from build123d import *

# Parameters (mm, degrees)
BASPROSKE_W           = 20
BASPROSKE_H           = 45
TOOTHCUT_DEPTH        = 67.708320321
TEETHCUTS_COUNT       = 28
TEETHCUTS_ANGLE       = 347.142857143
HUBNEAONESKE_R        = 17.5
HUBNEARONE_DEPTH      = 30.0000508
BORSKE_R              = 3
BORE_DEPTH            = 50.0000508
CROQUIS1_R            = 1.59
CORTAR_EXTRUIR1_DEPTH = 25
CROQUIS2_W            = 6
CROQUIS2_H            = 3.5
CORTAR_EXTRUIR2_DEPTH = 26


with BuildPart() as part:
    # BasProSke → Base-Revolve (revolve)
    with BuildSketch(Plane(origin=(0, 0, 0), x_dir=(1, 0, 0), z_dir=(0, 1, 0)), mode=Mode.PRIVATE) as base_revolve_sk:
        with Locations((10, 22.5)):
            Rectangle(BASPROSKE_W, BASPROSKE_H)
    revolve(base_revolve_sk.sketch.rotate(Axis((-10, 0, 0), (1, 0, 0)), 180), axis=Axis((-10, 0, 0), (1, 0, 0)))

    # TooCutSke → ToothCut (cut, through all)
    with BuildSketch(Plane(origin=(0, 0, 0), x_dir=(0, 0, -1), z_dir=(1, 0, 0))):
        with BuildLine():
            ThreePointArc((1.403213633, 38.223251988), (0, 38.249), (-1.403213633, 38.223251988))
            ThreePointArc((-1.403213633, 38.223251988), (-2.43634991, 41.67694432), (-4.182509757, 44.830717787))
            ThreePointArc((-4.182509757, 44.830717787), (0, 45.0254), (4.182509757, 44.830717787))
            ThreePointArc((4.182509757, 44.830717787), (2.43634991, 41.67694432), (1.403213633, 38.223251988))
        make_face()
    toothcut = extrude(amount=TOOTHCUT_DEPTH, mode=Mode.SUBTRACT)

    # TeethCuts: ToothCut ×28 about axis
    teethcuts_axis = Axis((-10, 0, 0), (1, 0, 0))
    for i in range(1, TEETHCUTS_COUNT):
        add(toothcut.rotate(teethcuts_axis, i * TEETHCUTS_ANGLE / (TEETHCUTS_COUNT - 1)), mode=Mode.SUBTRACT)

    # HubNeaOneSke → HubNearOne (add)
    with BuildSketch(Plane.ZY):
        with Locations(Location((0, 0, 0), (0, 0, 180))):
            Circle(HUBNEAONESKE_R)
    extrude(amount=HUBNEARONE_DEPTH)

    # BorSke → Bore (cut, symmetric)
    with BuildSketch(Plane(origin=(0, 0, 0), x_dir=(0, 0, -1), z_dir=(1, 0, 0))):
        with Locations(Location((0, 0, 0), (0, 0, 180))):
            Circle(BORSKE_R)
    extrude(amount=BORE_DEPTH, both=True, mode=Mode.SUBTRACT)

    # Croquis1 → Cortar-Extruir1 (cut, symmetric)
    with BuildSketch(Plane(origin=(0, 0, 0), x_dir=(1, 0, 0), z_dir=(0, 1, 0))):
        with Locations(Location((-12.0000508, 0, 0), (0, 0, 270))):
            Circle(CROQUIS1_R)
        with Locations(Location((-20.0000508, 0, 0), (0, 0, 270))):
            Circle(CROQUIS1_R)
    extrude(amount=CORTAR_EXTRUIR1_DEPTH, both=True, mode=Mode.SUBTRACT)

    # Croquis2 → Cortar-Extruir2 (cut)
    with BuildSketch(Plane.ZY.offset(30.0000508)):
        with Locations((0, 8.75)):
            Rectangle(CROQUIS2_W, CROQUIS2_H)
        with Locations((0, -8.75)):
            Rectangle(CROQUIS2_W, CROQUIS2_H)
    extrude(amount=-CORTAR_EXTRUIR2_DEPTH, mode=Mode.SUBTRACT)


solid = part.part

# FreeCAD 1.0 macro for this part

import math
import FreeCAD as App
import Part
import Sketcher
from FreeCAD import Vector


def add_polygon(sketch, points):
    """Adds a closed chain of lines whose ends are joined by coincident constraints."""
    first, n = sketch.GeometryCount, len(points)
    for a, b in zip(points, points[1:] + points[:1]):
        sketch.addGeometry(Part.LineSegment(App.Vector(*a, 0), App.Vector(*b, 0)), False)
    for i in range(n):
        sketch.addConstraint(Sketcher.Constraint("Coincident", first + i, 2, first + (i + 1) % n, 1))

doc = App.newDocument("Part")
body = doc.addObject("PartDesign::Body", "Body")

sketch1 = body.newObject("Sketcher::SketchObject", "Sketch")
sketch1.AttachmentSupport = (doc.getObject("XZ_Plane"), [""])
sketch1.MapMode = "FlatFace"
add_polygon(sketch1, [(0, -45), (0, 0), (20, 0), (20, -45)])
sketch1.addConstraint(Sketcher.Constraint("Vertical", 0))
sketch1.addConstraint(Sketcher.Constraint("Horizontal", 1))
sketch1.addConstraint(Sketcher.Constraint("Vertical", 2))
sketch1.addConstraint(Sketcher.Constraint("Horizontal", 3))
sketch1.addConstraint(Sketcher.Constraint("Coincident", 0, 2, -1, 1))
sketch1.addConstraint(Sketcher.Constraint("DistanceX", 1, 1, 1, 2, 20.0))
sketch1.addConstraint(Sketcher.Constraint("DistanceY", 0, 1, 0, 2, 45.0))
revolution = body.newObject("PartDesign::Revolution", "Revolution")
revolution.Profile = sketch1
revolution.ReferenceAxis = (sketch1, ["H_Axis"])
revolution.Angle = 360

sketch2 = body.newObject("Sketcher::SketchObject", "Sketch001")
sketch2.AttachmentSupport = (doc.getObject("YZ_Plane"), [""])
sketch2.MapMode = "FlatFace"
sketch2.addGeometry(Part.ArcOfCircle(Part.Circle(Vector(-0.000001, 0, 0), Vector(0, 0, 1), 38.249001), math.radians(-2.102441), math.radians(2.102441)), False)
sketch2.addGeometry(Part.ArcOfCircle(Part.Circle(Vector(35.163151, -17.922166, 0), Vector(0, 0, 1), 16.8), math.radians(54.868819), math.radians(79.505049)), False)
sketch2.addGeometry(Part.ArcOfCircle(Part.Circle(Vector(0, 0, 0), Vector(0, 0, 1), 45.0254), math.radians(-5.330017), math.radians(5.330017)), False)
sketch2.addGeometry(Part.ArcOfCircle(Part.Circle(Vector(35.163151, 17.922166, 0), Vector(0, 0, 1), 16.8), math.radians(-79.505049), math.radians(-54.868819)), False)
sketch2.addConstraint(Sketcher.Constraint("Coincident", 0, 1, 1, 2))
sketch2.addConstraint(Sketcher.Constraint("Coincident", 1, 1, 2, 1))
sketch2.addConstraint(Sketcher.Constraint("Coincident", 2, 2, 3, 2))
sketch2.addConstraint(Sketcher.Constraint("Coincident", 3, 1, 0, 2))
sketch2.addConstraint(Sketcher.Constraint("Coincident", 0, 3, -1, 1))
sketch2.addConstraint(Sketcher.Constraint("Coincident", 2, 3, -1, 1))
sketch2.addConstraint(Sketcher.Constraint("Equal", 1, 3))
sketch2.addConstraint(Sketcher.Constraint("Symmetric", 1, 3, 3, 3, -1))
sketch2.addConstraint(Sketcher.Constraint("Radius", 1, 16.8))
sketch2.addConstraint(Sketcher.Constraint("Radius", 0, 38.249001))
sketch2.addConstraint(Sketcher.Constraint("Radius", 2, 45.0254))
sketch2.addConstraint(Sketcher.Constraint("DistanceX", 1, 3, 0, 1, 3.060101))
sketch2.addConstraint(Sketcher.Constraint("DistanceX", -1, 1, 1, 3, 35.163151))
pocket1 = body.newObject("PartDesign::Pocket", "Pocket")
pocket1.Profile = sketch2
pocket1.Type = "ThroughAll"
pocket1.Reversed = True
doc.recompute()

polarpattern = body.newObject("PartDesign::PolarPattern", "PolarPattern")
polarpattern.Originals = [pocket1]
polarpattern.Axis = (doc.getObject("X_Axis"), [""])
polarpattern.Angle = 360
polarpattern.Occurrences = 28
body.Tip = polarpattern

sketch3 = body.newObject("Sketcher::SketchObject", "Sketch002")
sketch3.AttachmentSupport = (doc.getObject("YZ_Plane"), [""])
sketch3.MapMode = "FlatFace"
sketch3.addGeometry(Part.Circle(Vector(0, 0, 0), Vector(0, 0, 1), 18), False)
sketch3.addConstraint(Sketcher.Constraint("Coincident", 0, 3, -1, 1))
sketch3.addConstraint(Sketcher.Constraint("Diameter", 0, 35.0))
pad1 = body.newObject("PartDesign::Pad", "Pad")
pad1.Profile = sketch3
pad1.Length = 30.000051
pad1.Reversed = True

sketch4 = body.newObject("Sketcher::SketchObject", "Sketch003")
sketch4.AttachmentSupport = (doc.getObject("YZ_Plane"), [""])
sketch4.MapMode = "FlatFace"
sketch4.addGeometry(Part.Circle(Vector(0, 0, 0), Vector(0, 0, 1), 3), False)
sketch4.addConstraint(Sketcher.Constraint("Coincident", 0, 3, -1, 1))
sketch4.addConstraint(Sketcher.Constraint("Diameter", 0, 6.0))
pocket2 = body.newObject("PartDesign::Pocket", "Pocket001")
pocket2.Profile = sketch4
pocket2.Length = 100.000102
pocket2.Midplane = True

sketch5 = body.newObject("Sketcher::SketchObject", "Sketch004")
sketch5.AttachmentSupport = (doc.getObject("XZ_Plane"), [""])
sketch5.MapMode = "FlatFace"
sketch5.addGeometry(Part.Circle(Vector(-12, 0, 0), Vector(0, 0, 1), 1.6), False)
sketch5.addGeometry(Part.Circle(Vector(-20, 0, 0), Vector(0, 0, 1), 1.6), False)
sketch5.addConstraint(Sketcher.Constraint("Equal", 0, 1))
sketch5.addConstraint(Sketcher.Constraint("PointOnObject", 0, 3, -1))
sketch5.addConstraint(Sketcher.Constraint("PointOnObject", 1, 3, -1))
sketch5.addConstraint(Sketcher.Constraint("Diameter", 0, 3.18))
sketch5.addConstraint(Sketcher.Constraint("DistanceX", 1, 3, 0, 3, 8.0))
sketch5.addConstraint(Sketcher.Constraint("DistanceX", 0, 3, -1, 1, 12.000051))
pocket3 = body.newObject("PartDesign::Pocket", "Pocket002")
pocket3.Profile = sketch5
pocket3.Length = 50
pocket3.Midplane = True

sketch6 = body.newObject("Sketcher::SketchObject", "Sketch005")
sketch6.AttachmentSupport = (doc.getObject("YZ_Plane"), [""])
sketch6.MapMode = "FlatFace"
sketch6.AttachmentOffset = App.Placement(Vector(0, 0, -30.000051), App.Rotation())
add_polygon(sketch6, [(10.5, -3), (7, -3), (7, 3), (10.5, 3)])
add_polygon(sketch6, [(-7, -3), (-10.5, -3), (-10.5, 3), (-7, 3)])
sketch6.addConstraint(Sketcher.Constraint("Horizontal", 0))
sketch6.addConstraint(Sketcher.Constraint("Vertical", 1))
sketch6.addConstraint(Sketcher.Constraint("Horizontal", 2))
sketch6.addConstraint(Sketcher.Constraint("Vertical", 3))
sketch6.addConstraint(Sketcher.Constraint("Horizontal", 4))
sketch6.addConstraint(Sketcher.Constraint("Vertical", 5))
sketch6.addConstraint(Sketcher.Constraint("Horizontal", 6))
sketch6.addConstraint(Sketcher.Constraint("Vertical", 7))
sketch6.addConstraint(Sketcher.Constraint("Symmetric", 2, 2, 4, 2, -1, 1))
sketch6.addConstraint(Sketcher.Constraint("Symmetric", 0, 2, 6, 2, -1, 1))
sketch6.addConstraint(Sketcher.Constraint("Horizontal", 3, 2, 4, 2))
sketch6.addConstraint(Sketcher.Constraint("DistanceY", 1, 1, 1, 2, 6.0))
sketch6.addConstraint(Sketcher.Constraint("DistanceX", 0, 2, 0, 1, 3.5))
sketch6.addConstraint(Sketcher.Constraint("DistanceX", -1, 1, 0, 2, 7.0))
pocket4 = body.newObject("PartDesign::Pocket", "Pocket003")
pocket4.Profile = sketch6
pocket4.Length = 26
pocket4.Reversed = True

doc.recompute()
